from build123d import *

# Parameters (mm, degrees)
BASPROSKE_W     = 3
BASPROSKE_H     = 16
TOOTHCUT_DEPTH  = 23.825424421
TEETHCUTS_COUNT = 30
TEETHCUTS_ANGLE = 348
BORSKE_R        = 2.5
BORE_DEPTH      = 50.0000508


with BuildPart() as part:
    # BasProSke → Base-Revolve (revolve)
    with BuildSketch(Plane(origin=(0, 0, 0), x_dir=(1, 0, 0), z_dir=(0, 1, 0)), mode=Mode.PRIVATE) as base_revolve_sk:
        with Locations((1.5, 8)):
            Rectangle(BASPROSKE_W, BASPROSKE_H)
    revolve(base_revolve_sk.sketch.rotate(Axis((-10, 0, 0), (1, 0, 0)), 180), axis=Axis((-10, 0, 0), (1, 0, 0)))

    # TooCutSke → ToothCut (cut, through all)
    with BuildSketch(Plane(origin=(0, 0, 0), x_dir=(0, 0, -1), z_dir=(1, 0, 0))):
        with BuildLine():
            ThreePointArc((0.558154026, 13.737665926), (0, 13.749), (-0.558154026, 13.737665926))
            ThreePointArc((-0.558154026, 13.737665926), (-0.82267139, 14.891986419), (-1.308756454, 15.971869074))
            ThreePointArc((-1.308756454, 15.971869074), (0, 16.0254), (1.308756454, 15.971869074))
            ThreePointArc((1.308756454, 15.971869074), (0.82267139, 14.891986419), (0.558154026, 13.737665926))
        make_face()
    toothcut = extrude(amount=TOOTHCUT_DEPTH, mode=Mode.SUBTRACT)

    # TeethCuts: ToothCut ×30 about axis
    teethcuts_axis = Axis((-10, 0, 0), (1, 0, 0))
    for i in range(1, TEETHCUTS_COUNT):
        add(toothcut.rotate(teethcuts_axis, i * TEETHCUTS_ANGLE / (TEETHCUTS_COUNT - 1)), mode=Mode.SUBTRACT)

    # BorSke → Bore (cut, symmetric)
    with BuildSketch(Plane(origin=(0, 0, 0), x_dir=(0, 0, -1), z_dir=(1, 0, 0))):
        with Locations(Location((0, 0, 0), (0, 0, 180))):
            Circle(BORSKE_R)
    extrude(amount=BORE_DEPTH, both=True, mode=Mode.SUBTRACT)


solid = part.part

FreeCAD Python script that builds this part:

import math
import FreeCAD as App
import Part
import Sketcher

V = App.Vector

doc = App.newDocument("Part")
params = doc.addObject("Spreadsheet::Sheet", "Params")
for row, (alias, value) in enumerate([
    ("sketch1_width", "3 mm"),
    ("sketch1_height", "16 mm"),
    ("revolution_angle", "360 deg"),
    ("sketch2_radius", "6 mm"),
    ("sketch3_diameter", "5 mm"),
    ("pocket2_length", "100.000102 mm"),
], start=1):
    params.set(f"A{row}", alias)
    params.set(f"B{row}", "=" + value)
    params.setAlias(f"B{row}", alias)

body = doc.addObject("PartDesign::Body", "Body")

# Sketch on XZ plane
sketch1 = body.newObject("Sketcher::SketchObject", "Sketch")
sketch1.AttachmentSupport = (doc.getObject("XZ_Plane"), [""])
sketch1.MapMode = "FlatFace"
sketch1.addGeometry([
    Part.LineSegment(V(0, -16, 0), V(0, 0, 0)),
    Part.LineSegment(V(0, 0, 0), V(3, 0, 0)),
    Part.LineSegment(V(3, 0, 0), V(3, -16, 0)),
    Part.LineSegment(V(3, -16, 0), V(0, -16, 0)),
], False)
sketch1.addConstraint([
    Sketcher.Constraint("Coincident", 0, 2, 1, 1),
    Sketcher.Constraint("Coincident", 1, 2, 2, 1),
    Sketcher.Constraint("Coincident", 2, 2, 3, 1),
    Sketcher.Constraint("Coincident", 3, 2, 0, 1),
    Sketcher.Constraint("Vertical", 0),
    Sketcher.Constraint("Horizontal", 1),
    Sketcher.Constraint("Vertical", 2),
    Sketcher.Constraint("Horizontal", 3),
    Sketcher.Constraint("Coincident", 0, 2, -1, 1),
    Sketcher.Constraint("DistanceX", 1, 1, 1, 2, 3.0),
    Sketcher.Constraint("DistanceY", 0, 1, 0, 2, 16.0),
])
sketch1.setExpression("Constraints[9]", "Params.sketch1_width")
sketch1.setExpression("Constraints[10]", "Params.sketch1_height")
revolution = body.newObject("PartDesign::Revolution", "Revolution")
revolution.Profile = sketch1
revolution.ReferenceAxis = (sketch1, ["H_Axis"])
revolution.setExpression("Angle", "Params.revolution_angle")

# Sketch on YZ plane
sketch2 = body.newObject("Sketcher::SketchObject", "Sketch001")
sketch2.AttachmentSupport = (doc.getObject("YZ_Plane"), [""])
sketch2.MapMode = "FlatFace"
sketch2.addGeometry([
    Part.ArcOfCircle(Part.Circle(V(0, 0, 0), V(0, 0, 1), 13.749), math.radians(-2.326617), math.radians(2.326617)),
    Part.ArcOfCircle(Part.Circle(V(12.981181, -6.510274, 0), V(0, 0, 1), 6), math.radians(60.102622), math.radians(82.756821)),
    Part.ArcOfCircle(Part.Circle(V(0, 0, 0), V(0, 0, 1), 16.0254), math.radians(-4.684428), math.radians(4.684428)),
    Part.ArcOfCircle(Part.Circle(V(12.981181, 6.510274, 0), V(0, 0, 1), 6), math.radians(-82.756821), math.radians(-60.102622)),
], False)
sketch2.addConstraint([
    Sketcher.Constraint("Coincident", 0, 1, 1, 2),
    Sketcher.Constraint("Coincident", 1, 1, 2, 1),
    Sketcher.Constraint("Coincident", 2, 2, 3, 2),
    Sketcher.Constraint("Coincident", 3, 1, 0, 2),
    Sketcher.Constraint("Coincident", 0, 3, -1, 1),
    Sketcher.Constraint("Coincident", 2, 3, -1, 1),
    Sketcher.Constraint("Equal", 1, 3),
    Sketcher.Constraint("Symmetric", 1, 3, 3, 3, -1),
    Sketcher.Constraint("Radius", 1, 6.0),
    Sketcher.Constraint("Radius", 0, 13.749),
    Sketcher.Constraint("Radius", 2, 16.0254),
    Sketcher.Constraint("DistanceX", -1, 1, 1, 3, 12.981181),
    Sketcher.Constraint("DistanceX", -1, 1, 1, 1, 15.971869),
])
sketch2.setExpression("Constraints[8]", "Params.sketch2_radius")
pocket1 = body.newObject("PartDesign::Pocket", "Pocket")
pocket1.Profile = sketch2
pocket1.Type = "ThroughAll"
pocket1.Reversed = True
doc.recompute()

polarpattern = body.newObject("PartDesign::PolarPattern", "PolarPattern")
polarpattern.Originals = [pocket1]
polarpattern.Axis = (doc.getObject("X_Axis"), [""])
polarpattern.Angle = 360
polarpattern.Occurrences = 30
body.Tip = polarpattern

# Sketch on YZ plane
sketch3 = body.newObject("Sketcher::SketchObject", "Sketch002")
sketch3.AttachmentSupport = (doc.getObject("YZ_Plane"), [""])
sketch3.MapMode = "FlatFace"
sketch3.addGeometry(Part.Circle(V(0, 0, 0), V(0, 0, 1), 2.5), False)
sketch3.addConstraint([
    Sketcher.Constraint("Coincident", 0, 3, -1, 1),
    Sketcher.Constraint("Diameter", 0, 5.0),
])
sketch3.setExpression("Constraints[1]", "Params.sketch3_diameter")
pocket2 = body.newObject("PartDesign::Pocket", "Pocket001")
pocket2.Profile = sketch3
pocket2.setExpression("Length", "Params.pocket2_length")
pocket2.Midplane = True

doc.recompute()
